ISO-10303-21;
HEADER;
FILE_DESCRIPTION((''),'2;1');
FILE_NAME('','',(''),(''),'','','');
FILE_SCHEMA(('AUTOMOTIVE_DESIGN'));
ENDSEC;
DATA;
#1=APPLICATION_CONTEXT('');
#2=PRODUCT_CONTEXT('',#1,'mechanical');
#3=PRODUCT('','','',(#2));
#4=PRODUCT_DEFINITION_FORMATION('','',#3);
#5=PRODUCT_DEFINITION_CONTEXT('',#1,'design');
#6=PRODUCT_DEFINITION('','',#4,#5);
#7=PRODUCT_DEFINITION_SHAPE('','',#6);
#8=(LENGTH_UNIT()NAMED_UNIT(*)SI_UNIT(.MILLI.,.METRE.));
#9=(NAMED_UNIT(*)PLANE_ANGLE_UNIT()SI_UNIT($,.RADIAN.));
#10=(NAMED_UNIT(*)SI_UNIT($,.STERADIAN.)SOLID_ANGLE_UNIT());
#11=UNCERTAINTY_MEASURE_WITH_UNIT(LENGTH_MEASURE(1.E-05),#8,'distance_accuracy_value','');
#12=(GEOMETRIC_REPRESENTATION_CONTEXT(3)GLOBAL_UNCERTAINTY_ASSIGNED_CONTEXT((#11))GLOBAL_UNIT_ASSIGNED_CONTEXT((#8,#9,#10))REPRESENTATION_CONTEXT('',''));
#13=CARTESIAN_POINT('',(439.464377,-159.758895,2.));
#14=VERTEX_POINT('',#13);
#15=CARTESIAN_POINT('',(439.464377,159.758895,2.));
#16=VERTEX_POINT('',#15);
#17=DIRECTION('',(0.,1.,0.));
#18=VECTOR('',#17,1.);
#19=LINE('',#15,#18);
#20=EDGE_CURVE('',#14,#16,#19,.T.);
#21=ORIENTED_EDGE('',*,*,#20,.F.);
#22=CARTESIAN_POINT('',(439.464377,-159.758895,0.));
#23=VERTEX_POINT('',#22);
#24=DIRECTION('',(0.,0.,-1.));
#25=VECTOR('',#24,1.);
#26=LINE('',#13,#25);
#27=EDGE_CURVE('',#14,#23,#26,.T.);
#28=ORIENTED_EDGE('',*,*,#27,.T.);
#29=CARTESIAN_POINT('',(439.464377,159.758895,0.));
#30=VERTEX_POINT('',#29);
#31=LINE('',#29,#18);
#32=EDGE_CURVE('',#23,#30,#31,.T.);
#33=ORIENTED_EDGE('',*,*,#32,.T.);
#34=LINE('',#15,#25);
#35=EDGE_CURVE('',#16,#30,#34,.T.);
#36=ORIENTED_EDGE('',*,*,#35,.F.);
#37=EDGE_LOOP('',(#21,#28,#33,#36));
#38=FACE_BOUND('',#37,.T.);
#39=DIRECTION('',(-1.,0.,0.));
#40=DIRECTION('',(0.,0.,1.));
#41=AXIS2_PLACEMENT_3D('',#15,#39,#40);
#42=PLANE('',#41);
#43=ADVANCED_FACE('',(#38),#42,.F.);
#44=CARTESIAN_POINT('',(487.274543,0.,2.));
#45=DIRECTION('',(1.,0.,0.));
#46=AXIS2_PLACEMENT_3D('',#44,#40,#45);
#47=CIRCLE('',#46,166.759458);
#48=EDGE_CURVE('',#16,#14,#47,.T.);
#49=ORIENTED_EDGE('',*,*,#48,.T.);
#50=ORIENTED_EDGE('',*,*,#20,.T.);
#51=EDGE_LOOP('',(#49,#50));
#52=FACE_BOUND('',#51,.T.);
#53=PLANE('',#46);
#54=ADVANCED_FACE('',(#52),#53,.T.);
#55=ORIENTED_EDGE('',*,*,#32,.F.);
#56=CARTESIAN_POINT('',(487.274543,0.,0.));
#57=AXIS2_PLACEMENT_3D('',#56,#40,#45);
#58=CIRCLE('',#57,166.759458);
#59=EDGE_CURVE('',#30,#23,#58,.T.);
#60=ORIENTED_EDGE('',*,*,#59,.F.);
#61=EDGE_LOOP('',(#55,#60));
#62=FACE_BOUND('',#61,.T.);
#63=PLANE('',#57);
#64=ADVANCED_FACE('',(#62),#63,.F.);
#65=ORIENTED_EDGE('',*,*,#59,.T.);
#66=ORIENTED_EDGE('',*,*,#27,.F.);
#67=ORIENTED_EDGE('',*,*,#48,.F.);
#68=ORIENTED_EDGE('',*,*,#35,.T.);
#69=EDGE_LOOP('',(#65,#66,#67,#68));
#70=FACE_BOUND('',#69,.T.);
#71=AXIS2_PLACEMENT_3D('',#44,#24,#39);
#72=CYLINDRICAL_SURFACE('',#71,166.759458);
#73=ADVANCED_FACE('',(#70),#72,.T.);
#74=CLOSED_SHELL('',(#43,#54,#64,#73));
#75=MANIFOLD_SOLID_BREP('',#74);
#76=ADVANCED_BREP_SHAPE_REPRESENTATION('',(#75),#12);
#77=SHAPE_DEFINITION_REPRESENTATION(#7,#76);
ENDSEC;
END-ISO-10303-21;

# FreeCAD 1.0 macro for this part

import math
import FreeCAD as App
import Part
import Sketcher
from FreeCAD import Vector

doc = App.newDocument("Part")
params = doc.addObject("Spreadsheet::Sheet", "Params")
for row, (alias, value) in enumerate([
    ("pad1_length", "2 mm"),
], start=1):
    params.set(f"A{row}", alias)
    params.set(f"B{row}", "=" + value)
    params.setAlias(f"B{row}", alias)

body = doc.addObject("PartDesign::Body", "Body")

# Sketch on XY plane
sketch1 = body.newObject("Sketcher::SketchObject", "Sketch")
sketch1.AttachmentSupport = (doc.getObject("XY_Plane"), [""])
sketch1.MapMode = "FlatFace"
sketch1.addGeometry(Part.LineSegment(Vector(439.464377, -159.758895, 0), Vector(439.464377, 159.758895, 0)), False)
sketch1.addGeometry(Part.ArcOfCircle(Part.Circle(Vector(487.274543, 0, 0), Vector(0, 0, 1), 166.759458), math.radians(106.660575), math.radians(253.339425)), False)
sketch1.addConstraint(Sketcher.Constraint("Coincident", 0, 1, 1, 2))
sketch1.addConstraint(Sketcher.Constraint("Coincident", 1, 1, 0, 2))
sketch1.addConstraint(Sketcher.Constraint("Vertical", 0))
sketch1.addConstraint(Sketcher.Constraint("PointOnObject", 1, 3, -1))
sketch1.addConstraint(Sketcher.Constraint("Radius", 1, 166.759458))
sketch1.addConstraint(Sketcher.Constraint("DistanceY", 0, 1, 0, 2, 319.517791))
sketch1.addConstraint(Sketcher.Constraint("DistanceX", -1, 1, 1, 3, 487.274543))
pad1 = body.newObject("PartDesign::Pad", "Pad")
pad1.Profile = sketch1
pad1.setExpression("Length", "Params.pad1_length")

doc.recompute()
